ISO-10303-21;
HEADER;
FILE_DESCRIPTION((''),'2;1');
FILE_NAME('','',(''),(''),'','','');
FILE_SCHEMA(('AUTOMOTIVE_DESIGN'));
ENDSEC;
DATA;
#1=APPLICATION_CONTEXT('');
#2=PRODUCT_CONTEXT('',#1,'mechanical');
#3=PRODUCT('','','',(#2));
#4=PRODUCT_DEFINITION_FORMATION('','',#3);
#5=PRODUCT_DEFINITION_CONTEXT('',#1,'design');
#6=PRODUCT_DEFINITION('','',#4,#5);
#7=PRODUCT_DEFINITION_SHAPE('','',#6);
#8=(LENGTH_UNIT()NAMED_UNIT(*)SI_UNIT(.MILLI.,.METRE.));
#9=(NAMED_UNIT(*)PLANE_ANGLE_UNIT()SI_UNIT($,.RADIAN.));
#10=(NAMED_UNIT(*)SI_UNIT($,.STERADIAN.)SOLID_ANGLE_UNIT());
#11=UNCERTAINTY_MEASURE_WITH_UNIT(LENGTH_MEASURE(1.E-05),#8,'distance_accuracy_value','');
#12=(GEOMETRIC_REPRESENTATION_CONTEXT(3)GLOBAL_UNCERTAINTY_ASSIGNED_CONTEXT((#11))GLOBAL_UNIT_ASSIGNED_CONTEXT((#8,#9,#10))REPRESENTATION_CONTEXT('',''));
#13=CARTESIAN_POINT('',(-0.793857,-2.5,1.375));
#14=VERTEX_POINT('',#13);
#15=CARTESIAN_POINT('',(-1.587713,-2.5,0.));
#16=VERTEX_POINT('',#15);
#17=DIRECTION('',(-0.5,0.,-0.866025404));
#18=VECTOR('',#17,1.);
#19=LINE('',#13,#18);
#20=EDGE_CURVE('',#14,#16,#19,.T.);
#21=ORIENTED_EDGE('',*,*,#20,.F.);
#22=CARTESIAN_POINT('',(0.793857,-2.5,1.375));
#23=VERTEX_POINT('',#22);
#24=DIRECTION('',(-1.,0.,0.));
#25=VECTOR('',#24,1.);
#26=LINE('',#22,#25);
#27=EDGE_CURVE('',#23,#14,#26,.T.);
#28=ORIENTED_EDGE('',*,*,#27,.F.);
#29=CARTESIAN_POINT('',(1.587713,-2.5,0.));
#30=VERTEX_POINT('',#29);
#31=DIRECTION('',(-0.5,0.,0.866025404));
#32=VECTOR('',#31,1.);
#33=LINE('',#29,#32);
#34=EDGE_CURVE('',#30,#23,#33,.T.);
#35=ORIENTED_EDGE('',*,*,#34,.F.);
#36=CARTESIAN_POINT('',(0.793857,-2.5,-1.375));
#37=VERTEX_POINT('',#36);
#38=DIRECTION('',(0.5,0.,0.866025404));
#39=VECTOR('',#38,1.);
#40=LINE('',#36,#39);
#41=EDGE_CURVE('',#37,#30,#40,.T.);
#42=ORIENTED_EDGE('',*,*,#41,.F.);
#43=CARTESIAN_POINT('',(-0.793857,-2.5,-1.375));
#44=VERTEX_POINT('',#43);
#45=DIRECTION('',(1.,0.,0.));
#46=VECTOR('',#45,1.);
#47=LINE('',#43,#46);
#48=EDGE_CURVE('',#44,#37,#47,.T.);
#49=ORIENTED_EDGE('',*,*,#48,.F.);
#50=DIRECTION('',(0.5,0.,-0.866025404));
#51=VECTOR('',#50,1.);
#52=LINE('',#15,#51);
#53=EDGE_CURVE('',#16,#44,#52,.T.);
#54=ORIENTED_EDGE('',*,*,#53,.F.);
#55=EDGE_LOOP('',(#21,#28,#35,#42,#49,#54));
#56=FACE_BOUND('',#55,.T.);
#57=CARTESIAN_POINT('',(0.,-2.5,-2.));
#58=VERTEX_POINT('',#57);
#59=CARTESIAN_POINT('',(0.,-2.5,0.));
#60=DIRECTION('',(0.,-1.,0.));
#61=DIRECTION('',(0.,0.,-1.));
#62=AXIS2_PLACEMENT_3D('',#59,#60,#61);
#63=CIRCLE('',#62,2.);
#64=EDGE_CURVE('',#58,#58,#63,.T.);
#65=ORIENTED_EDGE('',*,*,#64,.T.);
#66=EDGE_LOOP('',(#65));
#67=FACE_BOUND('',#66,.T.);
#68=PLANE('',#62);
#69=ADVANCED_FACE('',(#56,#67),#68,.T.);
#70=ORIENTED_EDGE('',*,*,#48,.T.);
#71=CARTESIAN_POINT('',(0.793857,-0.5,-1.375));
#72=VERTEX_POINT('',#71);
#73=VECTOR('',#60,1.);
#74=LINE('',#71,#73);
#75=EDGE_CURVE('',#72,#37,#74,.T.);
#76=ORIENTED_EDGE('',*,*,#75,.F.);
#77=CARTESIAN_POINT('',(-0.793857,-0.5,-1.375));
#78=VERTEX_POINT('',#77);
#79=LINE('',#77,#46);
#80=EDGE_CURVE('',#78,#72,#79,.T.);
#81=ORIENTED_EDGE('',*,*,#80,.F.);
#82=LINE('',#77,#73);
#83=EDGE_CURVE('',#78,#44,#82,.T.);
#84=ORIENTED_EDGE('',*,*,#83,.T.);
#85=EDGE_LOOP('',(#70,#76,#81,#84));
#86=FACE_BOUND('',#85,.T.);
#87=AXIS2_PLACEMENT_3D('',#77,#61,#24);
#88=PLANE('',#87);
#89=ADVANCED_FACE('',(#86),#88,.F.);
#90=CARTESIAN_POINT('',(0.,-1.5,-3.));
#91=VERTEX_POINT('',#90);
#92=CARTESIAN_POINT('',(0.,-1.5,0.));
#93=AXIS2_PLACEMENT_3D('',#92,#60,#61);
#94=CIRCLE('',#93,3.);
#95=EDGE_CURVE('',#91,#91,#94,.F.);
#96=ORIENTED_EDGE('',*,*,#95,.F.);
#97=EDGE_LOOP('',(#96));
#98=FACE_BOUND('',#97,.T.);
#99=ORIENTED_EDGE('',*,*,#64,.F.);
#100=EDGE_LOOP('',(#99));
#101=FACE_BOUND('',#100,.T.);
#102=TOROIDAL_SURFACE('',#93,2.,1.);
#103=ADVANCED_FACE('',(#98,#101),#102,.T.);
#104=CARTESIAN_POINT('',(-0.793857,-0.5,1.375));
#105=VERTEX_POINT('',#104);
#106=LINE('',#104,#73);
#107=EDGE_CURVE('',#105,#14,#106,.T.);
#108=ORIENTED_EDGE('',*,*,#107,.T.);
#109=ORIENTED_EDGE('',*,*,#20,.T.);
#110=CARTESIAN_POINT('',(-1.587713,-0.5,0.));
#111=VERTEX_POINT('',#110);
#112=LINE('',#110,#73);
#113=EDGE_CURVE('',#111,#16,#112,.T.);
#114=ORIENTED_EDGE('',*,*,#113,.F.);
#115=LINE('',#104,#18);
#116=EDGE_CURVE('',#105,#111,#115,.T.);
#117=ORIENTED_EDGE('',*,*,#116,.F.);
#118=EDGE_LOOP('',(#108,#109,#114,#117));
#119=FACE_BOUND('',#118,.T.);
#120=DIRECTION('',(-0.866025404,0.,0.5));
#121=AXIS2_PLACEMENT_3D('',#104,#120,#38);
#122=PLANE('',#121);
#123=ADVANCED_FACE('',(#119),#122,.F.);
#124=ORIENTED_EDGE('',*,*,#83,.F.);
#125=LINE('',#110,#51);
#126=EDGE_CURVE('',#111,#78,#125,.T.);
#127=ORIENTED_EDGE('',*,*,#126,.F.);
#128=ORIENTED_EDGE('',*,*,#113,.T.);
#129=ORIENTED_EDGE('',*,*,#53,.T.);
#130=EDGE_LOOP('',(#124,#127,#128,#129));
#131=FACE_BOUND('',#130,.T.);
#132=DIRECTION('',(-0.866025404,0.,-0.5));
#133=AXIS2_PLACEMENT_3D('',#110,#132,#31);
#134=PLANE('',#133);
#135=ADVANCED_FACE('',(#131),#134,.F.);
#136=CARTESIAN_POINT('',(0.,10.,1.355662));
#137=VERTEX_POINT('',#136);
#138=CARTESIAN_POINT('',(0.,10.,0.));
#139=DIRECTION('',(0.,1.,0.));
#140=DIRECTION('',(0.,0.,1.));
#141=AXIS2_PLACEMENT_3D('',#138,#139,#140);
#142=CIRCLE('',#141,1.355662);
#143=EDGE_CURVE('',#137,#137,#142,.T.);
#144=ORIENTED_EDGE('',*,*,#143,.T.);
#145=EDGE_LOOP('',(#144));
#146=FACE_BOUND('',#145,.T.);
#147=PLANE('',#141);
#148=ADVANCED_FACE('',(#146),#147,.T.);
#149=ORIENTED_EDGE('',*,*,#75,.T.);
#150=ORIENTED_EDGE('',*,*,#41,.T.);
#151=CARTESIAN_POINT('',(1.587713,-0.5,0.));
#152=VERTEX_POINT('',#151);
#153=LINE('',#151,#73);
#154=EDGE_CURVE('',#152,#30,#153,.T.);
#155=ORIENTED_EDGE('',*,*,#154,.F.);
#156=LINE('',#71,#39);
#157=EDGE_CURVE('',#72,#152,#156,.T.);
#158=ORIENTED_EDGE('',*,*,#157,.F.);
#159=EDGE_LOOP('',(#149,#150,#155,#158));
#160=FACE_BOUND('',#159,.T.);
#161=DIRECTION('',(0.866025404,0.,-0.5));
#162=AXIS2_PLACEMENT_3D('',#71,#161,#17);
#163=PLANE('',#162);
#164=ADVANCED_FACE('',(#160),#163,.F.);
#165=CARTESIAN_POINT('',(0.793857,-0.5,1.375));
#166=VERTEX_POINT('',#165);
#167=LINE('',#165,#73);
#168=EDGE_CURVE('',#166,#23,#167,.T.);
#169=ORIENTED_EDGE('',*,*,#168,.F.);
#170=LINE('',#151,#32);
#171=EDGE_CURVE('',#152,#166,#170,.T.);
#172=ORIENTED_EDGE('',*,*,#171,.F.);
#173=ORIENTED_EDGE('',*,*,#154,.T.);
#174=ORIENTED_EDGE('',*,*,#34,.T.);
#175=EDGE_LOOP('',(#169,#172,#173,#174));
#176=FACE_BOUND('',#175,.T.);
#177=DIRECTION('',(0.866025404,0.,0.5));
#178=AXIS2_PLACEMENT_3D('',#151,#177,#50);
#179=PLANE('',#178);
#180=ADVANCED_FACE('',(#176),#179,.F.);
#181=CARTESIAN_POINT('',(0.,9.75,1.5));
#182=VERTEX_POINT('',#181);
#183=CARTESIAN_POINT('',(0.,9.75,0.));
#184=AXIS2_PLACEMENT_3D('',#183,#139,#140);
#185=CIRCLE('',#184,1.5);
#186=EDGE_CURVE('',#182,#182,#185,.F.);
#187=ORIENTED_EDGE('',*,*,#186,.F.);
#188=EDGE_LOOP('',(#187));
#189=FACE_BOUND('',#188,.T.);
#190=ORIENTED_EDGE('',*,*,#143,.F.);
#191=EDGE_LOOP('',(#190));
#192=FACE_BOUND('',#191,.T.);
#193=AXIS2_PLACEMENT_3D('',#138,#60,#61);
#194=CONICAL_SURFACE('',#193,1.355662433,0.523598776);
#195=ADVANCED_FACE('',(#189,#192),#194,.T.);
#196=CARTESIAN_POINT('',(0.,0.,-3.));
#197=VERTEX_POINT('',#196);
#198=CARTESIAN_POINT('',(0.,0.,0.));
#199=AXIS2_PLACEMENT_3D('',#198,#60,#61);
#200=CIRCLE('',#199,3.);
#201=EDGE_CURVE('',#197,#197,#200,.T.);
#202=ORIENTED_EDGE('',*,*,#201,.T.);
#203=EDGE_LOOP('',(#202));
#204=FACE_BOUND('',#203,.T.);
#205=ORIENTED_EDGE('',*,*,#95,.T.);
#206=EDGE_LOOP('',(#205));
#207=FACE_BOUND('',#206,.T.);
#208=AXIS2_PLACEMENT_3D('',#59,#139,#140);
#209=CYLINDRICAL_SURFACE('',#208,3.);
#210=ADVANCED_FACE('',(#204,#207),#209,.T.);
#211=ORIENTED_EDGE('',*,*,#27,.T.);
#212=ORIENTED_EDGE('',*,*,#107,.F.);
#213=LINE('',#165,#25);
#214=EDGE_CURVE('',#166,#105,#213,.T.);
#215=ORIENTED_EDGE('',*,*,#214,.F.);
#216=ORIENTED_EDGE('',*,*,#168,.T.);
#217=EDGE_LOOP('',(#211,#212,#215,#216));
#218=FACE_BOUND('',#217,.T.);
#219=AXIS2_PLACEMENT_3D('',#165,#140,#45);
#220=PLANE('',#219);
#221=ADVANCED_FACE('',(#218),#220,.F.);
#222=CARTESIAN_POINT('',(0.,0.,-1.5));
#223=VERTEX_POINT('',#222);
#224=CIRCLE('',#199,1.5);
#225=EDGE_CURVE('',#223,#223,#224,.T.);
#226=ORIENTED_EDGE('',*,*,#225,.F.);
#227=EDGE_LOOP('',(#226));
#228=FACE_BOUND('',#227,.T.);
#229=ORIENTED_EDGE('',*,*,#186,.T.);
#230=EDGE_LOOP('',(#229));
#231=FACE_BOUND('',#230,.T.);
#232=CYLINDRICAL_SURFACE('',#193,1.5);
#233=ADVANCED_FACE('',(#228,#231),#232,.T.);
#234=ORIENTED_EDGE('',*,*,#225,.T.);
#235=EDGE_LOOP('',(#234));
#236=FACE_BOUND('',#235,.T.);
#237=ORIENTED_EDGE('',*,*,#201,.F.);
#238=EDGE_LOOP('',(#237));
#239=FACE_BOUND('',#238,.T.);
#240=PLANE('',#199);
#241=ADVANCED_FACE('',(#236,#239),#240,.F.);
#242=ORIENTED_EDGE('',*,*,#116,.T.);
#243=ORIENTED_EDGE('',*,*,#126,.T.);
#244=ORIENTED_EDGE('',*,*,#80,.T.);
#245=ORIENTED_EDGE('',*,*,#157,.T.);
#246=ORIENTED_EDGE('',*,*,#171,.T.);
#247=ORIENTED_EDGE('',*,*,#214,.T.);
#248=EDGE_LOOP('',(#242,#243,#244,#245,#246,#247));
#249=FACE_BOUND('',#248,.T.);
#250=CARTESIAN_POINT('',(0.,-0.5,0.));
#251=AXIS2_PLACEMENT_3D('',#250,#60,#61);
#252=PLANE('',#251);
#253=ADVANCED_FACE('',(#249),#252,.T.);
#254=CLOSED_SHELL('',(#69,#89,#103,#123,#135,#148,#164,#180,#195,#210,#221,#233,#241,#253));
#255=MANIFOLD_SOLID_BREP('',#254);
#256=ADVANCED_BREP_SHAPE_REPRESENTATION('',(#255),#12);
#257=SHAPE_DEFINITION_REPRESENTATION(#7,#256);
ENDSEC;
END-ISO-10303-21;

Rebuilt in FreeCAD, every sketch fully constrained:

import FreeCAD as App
import Part
import Sketcher
Q = App.Units.Quantity


def edges_at(feature, points):
    """Names of the edges that pass closest to the given points."""
    edges = feature.Shape.Edges
    near = lambda p: min(range(len(edges)), key=lambda i: edges[i].distToShape(Part.Vertex(*p))[0])
    return sorted({f"Edge{near(p) + 1}" for p in points})


def add_polygon(sketch, points):
    """Adds a closed chain of lines whose ends are joined by coincident constraints."""
    first, n = sketch.GeometryCount, len(points)
    for a, b in zip(points, points[1:] + points[:1]):
        sketch.addGeometry(Part.LineSegment(App.Vector(*a, 0), App.Vector(*b, 0)), False)
    for i in range(n):
        sketch.addConstraint(Sketcher.Constraint("Coincident", first + i, 2, first + (i + 1) % n, 1))

doc = App.newDocument("Part")
body = doc.addObject("PartDesign::Body", "Body")

# Sketch on XZ plane
sketch1 = doc.addObject("Sketcher::SketchObject", "Sketch")
body.addObject(sketch1)
sketch1.AttachmentSupport = (doc.XZ_Plane, [""])
sketch1.MapMode = "FlatFace"
sketch1.addGeometry(Part.Circle(App.Vector(0, 0, 0), App.Vector(0, 0, 1), 1.5), False)
sketch1.addConstraint([
    Sketcher.Constraint("Coincident", 0, 3, -1, 1),
    Sketcher.Constraint("Diameter", 0, 3.0),
])
pad1 = doc.addObject("PartDesign::Pad", "Pad")
body.addObject(pad1)
pad1.Profile = sketch1
pad1.Length = 10
pad1.Reversed = True
doc.recompute()

chamfer = doc.addObject("PartDesign::Chamfer", "Chamfer")
body.addObject(chamfer)
chamfer.Base = (pad1, edges_at(pad1, [(0, 10, -1.5)]))
chamfer.ChamferType = "Two distances"
chamfer.Size = 0.25
chamfer.Size2 = 0.144338

# Sketch on XZ plane
sketch2 = doc.addObject("Sketcher::SketchObject", "Sketch001")
body.addObject(sketch2)
sketch2.AttachmentSupport = (doc.XZ_Plane, [""])
sketch2.MapMode = "FlatFace"
sketch2.addGeometry(Part.Circle(App.Vector(0, 0, 0), App.Vector(0, 0, 1), 3), False)
sketch2.addConstraint([
    Sketcher.Constraint("Coincident", 0, 3, -1, 1),
    Sketcher.Constraint("Diameter", 0, 6.0),
])
pad2 = doc.addObject("PartDesign::Pad", "Pad001")
body.addObject(pad2)
pad2.Profile = sketch2
pad2.Length = 2.5
doc.recompute()

fillet = doc.addObject("PartDesign::Fillet", "Fillet")
body.addObject(fillet)
fillet.Base = (pad2, edges_at(pad2, [(0, -2.5, 3)]))
fillet.Radius = 1

# Sketch on XZ plane
sketch3 = doc.addObject("Sketcher::SketchObject", "Sketch002")
body.addObject(sketch3)
sketch3.AttachmentSupport = (doc.XZ_Plane, [""])
sketch3.MapMode = "FlatFace"
sketch3.AttachmentOffset = App.Placement(App.Vector(0, 0, 2.5), App.Rotation())
add_polygon(sketch3, [(-1.587713, 0), (-0.793857, -1.375), (0.793857, -1.375), (1.587713, 0), (0.793857, 1.375), (-0.793857, 1.375)])  # lines 0-5
sketch3.addConstraint([
    Sketcher.Constraint("Horizontal", 1),
    Sketcher.Constraint("Horizontal", 4),
    Sketcher.Constraint("Symmetric", 0, 2, 3, 2, -1, 1),
    Sketcher.Constraint("Symmetric", 2, 2, 5, 2, -1, 1),
    Sketcher.Constraint("PointOnObject", 2, 2, -1),
    Sketcher.Constraint("Parallel", 2, 5),
    Sketcher.Constraint("Vertical", 1, 2, 3, 2),
    Sketcher.Constraint("Angle", 0, Q("-60 deg")),
    Sketcher.Constraint("DistanceY", 1, 2, 3, 2, 2.75),
    Sketcher.Constraint("DistanceX", 1, 1, 1, 2, 1.587713),
])
pocket1 = doc.addObject("PartDesign::Pocket", "Pocket")
body.addObject(pocket1)
pocket1.Profile = sketch3
pocket1.Length = 2

doc.recompute()
